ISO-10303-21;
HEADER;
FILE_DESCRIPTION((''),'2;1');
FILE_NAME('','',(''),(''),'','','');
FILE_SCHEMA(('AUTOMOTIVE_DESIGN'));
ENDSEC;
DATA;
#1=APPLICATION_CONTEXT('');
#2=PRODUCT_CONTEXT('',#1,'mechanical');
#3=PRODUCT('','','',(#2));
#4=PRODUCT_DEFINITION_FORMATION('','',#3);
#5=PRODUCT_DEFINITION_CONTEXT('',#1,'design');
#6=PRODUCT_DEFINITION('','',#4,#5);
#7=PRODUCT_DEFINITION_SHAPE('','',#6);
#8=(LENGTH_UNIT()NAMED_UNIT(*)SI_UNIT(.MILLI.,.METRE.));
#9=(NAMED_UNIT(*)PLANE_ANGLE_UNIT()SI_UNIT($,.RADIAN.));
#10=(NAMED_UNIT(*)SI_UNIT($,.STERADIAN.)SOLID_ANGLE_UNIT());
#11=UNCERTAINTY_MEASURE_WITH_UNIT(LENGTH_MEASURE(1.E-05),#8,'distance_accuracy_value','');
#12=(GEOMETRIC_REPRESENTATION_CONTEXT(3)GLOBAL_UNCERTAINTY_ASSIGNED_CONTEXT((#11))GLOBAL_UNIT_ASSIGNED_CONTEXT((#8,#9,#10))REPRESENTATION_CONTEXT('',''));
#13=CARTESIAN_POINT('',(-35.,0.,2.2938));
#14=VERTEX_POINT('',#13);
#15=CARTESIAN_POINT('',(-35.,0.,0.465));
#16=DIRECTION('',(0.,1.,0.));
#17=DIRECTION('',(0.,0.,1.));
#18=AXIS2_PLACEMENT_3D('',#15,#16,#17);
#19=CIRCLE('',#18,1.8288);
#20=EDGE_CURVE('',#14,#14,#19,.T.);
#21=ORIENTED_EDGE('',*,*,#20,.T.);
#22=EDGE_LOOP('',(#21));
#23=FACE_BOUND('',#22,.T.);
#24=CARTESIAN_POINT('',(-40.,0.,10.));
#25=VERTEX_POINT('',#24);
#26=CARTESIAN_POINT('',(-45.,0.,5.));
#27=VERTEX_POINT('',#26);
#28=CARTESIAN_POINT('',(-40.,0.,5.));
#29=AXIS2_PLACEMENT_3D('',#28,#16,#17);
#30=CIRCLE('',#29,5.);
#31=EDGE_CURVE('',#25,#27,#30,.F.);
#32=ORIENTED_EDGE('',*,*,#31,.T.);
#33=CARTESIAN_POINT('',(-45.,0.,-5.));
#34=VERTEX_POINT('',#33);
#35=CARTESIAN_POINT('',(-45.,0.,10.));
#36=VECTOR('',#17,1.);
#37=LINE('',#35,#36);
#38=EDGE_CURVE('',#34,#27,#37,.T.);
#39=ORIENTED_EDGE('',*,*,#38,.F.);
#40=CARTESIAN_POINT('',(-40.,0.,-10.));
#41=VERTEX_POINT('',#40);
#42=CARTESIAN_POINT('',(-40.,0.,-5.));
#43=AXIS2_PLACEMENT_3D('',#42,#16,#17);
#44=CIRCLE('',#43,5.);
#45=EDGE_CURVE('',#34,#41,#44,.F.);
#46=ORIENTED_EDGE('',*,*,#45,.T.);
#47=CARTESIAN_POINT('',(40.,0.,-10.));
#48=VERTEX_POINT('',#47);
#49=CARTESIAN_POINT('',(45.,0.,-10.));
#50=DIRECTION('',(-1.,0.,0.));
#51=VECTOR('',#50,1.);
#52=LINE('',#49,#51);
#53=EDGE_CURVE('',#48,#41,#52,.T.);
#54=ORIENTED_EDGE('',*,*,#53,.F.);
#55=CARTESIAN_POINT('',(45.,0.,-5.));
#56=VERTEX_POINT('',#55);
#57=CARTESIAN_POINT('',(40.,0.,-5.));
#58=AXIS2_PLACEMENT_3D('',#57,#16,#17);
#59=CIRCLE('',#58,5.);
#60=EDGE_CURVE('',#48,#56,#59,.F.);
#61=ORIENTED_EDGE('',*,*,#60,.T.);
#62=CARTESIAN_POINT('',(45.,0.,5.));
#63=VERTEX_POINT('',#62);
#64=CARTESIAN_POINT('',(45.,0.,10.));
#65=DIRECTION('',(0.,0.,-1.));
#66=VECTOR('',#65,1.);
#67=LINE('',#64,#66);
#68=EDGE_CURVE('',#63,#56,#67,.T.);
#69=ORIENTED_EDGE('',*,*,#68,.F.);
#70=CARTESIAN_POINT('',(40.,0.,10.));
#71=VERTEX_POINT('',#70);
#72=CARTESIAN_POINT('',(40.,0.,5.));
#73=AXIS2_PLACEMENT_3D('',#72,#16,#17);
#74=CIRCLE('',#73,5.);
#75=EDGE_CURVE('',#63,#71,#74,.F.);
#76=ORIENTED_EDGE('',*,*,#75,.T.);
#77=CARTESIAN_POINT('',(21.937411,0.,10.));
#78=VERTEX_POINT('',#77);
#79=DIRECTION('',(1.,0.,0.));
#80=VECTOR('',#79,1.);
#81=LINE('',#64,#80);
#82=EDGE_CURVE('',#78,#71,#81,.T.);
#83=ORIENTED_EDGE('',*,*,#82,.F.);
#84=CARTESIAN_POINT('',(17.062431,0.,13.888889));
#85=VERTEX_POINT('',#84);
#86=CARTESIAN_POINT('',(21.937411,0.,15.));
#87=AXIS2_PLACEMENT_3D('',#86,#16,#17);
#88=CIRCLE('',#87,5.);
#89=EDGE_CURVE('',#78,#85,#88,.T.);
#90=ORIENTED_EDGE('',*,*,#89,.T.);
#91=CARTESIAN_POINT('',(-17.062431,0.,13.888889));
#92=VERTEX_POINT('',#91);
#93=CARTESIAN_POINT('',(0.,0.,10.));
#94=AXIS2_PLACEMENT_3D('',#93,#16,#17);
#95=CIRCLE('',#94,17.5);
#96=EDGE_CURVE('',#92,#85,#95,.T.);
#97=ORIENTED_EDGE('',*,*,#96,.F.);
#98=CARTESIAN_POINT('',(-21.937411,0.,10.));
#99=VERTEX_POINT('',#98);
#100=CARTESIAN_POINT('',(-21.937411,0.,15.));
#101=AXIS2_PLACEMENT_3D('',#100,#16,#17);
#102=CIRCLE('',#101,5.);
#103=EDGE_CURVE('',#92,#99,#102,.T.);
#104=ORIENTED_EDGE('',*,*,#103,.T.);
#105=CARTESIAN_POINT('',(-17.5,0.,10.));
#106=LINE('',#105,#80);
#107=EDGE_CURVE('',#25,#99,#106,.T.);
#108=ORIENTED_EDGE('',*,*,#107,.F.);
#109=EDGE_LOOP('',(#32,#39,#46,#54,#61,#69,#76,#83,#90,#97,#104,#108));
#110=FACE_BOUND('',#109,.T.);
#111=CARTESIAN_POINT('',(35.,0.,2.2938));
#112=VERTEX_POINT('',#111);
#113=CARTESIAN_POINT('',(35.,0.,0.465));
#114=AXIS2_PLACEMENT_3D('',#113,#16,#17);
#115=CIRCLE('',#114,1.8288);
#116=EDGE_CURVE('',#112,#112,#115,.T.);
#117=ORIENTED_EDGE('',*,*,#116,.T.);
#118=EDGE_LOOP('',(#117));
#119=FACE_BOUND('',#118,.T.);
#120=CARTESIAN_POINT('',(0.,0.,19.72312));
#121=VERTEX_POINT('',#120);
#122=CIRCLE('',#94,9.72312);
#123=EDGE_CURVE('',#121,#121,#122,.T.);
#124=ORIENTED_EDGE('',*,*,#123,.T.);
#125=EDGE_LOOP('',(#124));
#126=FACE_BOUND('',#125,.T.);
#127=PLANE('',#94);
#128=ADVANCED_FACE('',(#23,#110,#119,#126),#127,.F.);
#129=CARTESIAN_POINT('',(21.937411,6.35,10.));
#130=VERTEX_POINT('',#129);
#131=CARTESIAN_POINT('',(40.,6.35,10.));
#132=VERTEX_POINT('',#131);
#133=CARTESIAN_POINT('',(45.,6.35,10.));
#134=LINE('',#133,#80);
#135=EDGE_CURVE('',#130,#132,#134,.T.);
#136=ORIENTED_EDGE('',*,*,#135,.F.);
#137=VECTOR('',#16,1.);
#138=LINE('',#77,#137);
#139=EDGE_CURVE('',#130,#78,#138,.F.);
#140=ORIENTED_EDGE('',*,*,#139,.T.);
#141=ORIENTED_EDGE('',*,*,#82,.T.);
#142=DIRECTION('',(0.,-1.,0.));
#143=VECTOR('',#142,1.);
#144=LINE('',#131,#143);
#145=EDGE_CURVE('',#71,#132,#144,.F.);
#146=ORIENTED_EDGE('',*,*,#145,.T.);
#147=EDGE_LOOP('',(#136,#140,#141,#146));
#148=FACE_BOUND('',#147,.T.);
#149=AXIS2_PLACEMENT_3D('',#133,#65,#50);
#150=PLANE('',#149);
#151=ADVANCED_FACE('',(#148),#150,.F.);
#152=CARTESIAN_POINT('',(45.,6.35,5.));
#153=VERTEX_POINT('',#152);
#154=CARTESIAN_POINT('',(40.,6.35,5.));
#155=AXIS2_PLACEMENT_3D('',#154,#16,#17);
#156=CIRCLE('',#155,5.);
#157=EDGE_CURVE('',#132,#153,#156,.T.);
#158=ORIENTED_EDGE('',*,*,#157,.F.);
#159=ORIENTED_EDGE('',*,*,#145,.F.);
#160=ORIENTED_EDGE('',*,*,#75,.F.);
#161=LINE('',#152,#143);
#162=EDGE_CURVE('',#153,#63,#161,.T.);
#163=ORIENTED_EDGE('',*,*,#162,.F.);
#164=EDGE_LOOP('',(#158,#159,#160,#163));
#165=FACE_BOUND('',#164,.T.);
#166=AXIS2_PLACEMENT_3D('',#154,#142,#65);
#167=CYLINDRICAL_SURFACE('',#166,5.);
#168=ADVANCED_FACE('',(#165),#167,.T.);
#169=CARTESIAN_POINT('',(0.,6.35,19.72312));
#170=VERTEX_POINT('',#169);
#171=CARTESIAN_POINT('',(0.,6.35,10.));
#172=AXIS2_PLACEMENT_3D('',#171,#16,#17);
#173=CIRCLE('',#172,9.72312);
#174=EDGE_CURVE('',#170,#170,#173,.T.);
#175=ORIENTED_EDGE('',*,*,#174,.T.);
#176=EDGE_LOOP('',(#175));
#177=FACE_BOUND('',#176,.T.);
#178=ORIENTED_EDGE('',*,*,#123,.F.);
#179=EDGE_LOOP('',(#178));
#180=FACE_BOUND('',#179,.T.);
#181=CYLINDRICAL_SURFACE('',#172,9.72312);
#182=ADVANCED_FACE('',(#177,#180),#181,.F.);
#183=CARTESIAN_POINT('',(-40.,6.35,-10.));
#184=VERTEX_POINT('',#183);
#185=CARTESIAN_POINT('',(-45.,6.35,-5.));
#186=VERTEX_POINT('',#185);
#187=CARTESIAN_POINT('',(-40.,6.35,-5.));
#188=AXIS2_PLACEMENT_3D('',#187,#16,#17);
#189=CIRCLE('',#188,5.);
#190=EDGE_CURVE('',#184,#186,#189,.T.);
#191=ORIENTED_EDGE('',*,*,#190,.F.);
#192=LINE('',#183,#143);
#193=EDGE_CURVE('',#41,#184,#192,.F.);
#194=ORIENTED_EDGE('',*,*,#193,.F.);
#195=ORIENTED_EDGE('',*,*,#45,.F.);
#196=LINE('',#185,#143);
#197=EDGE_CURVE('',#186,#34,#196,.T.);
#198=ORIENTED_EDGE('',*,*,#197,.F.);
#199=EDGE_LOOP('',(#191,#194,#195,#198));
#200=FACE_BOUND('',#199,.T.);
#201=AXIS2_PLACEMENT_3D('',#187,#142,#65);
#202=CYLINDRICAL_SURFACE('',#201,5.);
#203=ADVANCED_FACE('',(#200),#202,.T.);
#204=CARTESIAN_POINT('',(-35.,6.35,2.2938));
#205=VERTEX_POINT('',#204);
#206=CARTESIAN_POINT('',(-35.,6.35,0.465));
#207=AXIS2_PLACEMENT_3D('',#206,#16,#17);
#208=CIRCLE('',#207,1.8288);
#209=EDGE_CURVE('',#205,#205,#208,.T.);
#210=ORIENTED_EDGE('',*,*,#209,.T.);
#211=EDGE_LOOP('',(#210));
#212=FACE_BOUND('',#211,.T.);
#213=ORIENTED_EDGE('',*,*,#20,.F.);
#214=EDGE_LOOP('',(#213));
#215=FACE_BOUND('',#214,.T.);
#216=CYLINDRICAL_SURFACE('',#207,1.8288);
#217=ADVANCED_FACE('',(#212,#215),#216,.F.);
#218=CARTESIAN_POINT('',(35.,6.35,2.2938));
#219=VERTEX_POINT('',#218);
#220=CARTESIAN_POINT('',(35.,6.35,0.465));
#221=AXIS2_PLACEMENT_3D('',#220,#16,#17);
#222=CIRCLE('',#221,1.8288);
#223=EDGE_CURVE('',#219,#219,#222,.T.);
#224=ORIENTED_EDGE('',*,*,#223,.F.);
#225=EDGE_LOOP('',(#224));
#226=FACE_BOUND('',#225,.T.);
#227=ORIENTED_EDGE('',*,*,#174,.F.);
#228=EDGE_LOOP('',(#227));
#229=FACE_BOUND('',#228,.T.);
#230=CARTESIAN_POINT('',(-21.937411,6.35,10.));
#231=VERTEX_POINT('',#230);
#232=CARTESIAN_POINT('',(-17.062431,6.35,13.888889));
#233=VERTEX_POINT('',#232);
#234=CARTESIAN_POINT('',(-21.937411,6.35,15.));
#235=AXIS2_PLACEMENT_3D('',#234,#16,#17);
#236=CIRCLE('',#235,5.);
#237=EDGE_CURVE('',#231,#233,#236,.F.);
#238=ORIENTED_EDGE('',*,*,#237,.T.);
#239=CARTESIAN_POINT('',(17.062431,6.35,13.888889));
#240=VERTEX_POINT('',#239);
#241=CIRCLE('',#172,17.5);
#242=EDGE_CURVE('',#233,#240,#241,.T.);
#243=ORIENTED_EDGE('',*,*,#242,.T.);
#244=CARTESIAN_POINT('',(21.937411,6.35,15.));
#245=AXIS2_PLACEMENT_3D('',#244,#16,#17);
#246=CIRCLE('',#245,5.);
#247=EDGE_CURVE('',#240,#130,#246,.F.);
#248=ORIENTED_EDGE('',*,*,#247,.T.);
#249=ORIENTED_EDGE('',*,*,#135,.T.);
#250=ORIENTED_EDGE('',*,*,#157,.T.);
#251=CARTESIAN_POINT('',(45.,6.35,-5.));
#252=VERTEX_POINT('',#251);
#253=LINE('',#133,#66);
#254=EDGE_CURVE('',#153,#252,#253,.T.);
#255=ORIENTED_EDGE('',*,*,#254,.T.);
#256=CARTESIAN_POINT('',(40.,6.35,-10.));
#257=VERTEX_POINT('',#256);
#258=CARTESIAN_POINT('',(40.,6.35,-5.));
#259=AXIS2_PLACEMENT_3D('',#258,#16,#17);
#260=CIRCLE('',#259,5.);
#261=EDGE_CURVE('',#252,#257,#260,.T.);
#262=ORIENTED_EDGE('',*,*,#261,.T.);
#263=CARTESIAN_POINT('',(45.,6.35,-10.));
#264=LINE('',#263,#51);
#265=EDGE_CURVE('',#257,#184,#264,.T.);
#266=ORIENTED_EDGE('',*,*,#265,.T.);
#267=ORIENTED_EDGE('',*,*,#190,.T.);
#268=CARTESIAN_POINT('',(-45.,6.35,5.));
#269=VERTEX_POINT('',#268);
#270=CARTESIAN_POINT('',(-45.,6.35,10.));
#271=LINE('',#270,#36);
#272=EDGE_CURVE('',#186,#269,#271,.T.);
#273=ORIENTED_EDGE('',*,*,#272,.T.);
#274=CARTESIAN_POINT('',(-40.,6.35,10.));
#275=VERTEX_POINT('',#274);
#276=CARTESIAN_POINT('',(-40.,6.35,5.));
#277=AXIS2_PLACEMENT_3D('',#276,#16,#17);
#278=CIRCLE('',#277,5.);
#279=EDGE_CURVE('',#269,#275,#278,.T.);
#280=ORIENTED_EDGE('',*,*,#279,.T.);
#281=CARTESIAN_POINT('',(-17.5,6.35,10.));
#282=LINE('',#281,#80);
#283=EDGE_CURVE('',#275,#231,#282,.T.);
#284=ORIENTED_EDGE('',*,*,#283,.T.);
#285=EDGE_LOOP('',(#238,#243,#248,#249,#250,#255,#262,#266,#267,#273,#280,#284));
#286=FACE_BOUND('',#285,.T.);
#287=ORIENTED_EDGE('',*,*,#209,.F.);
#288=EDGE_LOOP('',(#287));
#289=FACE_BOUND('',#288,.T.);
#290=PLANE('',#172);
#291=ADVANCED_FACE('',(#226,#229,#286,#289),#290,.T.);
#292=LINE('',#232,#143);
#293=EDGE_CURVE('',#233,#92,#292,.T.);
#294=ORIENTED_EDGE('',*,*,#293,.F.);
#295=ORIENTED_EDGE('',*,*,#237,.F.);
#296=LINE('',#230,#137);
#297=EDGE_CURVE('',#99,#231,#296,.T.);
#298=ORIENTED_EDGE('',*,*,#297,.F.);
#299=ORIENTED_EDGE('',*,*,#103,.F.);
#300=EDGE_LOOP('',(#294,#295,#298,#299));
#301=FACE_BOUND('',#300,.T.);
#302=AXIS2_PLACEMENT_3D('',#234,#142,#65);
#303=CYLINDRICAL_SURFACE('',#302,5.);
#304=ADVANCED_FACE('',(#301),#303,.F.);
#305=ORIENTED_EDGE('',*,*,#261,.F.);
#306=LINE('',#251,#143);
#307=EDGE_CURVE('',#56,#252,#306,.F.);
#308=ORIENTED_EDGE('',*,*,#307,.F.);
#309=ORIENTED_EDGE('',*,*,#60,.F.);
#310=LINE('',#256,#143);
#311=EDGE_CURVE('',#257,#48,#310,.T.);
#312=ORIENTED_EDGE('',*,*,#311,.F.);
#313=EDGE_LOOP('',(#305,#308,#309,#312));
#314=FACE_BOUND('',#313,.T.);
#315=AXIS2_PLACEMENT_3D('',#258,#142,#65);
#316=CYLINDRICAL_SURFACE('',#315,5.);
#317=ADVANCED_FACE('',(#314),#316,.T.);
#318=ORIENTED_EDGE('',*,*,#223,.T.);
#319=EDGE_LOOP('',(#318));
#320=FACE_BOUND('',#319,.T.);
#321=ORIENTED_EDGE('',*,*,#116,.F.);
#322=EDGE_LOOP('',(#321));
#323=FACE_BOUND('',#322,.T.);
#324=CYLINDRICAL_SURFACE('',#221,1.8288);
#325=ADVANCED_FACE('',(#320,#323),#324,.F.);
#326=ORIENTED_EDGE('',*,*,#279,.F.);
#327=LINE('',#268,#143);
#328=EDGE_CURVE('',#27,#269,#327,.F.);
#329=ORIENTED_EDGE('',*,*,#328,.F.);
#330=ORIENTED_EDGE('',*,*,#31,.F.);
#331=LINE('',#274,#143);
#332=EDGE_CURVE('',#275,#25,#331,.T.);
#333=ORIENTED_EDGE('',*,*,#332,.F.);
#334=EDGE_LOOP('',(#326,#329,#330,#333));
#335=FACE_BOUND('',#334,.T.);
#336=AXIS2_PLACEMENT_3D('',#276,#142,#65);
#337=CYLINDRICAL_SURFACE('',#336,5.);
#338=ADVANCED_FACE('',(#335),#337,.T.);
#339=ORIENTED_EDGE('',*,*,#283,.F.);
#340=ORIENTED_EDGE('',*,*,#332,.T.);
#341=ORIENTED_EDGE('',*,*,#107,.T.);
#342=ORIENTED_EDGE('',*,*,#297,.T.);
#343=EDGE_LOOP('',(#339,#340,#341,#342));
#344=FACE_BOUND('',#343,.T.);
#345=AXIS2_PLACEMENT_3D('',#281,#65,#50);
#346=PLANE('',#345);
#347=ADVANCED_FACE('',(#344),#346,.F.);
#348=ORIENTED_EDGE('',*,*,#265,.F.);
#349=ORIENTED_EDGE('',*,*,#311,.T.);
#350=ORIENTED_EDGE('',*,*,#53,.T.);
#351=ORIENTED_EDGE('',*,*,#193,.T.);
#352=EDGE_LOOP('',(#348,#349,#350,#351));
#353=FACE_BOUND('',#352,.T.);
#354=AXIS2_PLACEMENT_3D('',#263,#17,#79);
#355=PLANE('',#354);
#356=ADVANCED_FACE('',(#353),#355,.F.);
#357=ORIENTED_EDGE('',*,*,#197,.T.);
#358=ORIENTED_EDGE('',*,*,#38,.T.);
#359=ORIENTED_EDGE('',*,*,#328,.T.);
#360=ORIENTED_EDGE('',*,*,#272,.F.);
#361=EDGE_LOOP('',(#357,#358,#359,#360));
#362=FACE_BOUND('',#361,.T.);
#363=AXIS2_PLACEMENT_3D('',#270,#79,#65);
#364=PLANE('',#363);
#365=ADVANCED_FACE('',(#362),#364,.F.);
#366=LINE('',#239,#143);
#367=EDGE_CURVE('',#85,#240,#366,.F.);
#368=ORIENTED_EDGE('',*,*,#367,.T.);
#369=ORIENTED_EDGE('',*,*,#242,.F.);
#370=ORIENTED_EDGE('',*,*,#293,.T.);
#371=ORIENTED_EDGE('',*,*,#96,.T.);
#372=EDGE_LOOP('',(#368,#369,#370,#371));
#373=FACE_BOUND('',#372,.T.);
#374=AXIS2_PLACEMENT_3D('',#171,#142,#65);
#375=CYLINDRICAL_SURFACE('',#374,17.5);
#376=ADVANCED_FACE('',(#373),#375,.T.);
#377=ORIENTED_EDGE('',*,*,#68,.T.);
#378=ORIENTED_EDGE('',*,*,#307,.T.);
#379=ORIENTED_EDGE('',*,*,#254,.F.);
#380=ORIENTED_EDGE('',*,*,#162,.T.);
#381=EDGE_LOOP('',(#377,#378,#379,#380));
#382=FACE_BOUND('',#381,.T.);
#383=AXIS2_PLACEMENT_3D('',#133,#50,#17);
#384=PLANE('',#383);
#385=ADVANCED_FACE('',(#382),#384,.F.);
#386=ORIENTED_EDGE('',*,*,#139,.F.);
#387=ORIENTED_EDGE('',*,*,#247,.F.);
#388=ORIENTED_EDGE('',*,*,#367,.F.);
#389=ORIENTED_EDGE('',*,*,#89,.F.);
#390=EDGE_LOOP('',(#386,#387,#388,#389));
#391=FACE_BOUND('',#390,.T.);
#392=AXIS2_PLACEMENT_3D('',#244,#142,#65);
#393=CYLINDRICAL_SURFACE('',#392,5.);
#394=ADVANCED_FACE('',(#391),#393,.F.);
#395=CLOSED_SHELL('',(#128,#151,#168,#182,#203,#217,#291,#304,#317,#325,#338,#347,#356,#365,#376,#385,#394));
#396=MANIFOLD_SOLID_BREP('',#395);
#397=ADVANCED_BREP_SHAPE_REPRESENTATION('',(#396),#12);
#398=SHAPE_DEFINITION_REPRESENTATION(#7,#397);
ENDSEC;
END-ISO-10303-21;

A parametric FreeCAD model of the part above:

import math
import FreeCAD as App
import Part
import Sketcher
from FreeCAD import Vector


def edges_at(feature, points):
    """Names of the edges that pass closest to the given points."""
    edges = feature.Shape.Edges
    near = lambda p: min(range(len(edges)), key=lambda i: edges[i].distToShape(Part.Vertex(*p))[0])
    return sorted({f"Edge{near(p) + 1}" for p in points})

doc = App.newDocument("Part")
body = doc.addObject("PartDesign::Body", "Body")

# Sketch on XZ plane
sketch1 = doc.addObject("Sketcher::SketchObject", "Sketch")
body.addObject(sketch1)
sketch1.AttachmentSupport = (doc.XZ_Plane, [""])
sketch1.MapMode = "FlatFace"
sketch1.addGeometry([
    Part.LineSegment(Vector(-45, 10, 0), Vector(-17.5, 10, 0)),  # 0
    Part.ArcOfCircle(Part.Circle(Vector(0, 10, 0), Vector(0, 0, 1), 17.5), math.radians(0), math.radians(180)),  # 1
    Part.LineSegment(Vector(17.5, 10, 0), Vector(45, 10, 0)),  # 2
    Part.LineSegment(Vector(45, 10, 0), Vector(45, -10, 0)),  # 3
    Part.LineSegment(Vector(45, -10, 0), Vector(-45, -10, 0)),  # 4
    Part.LineSegment(Vector(-45, -10, 0), Vector(-45, 10, 0)),  # 5
], False)
sketch1.addConstraint([
    Sketcher.Constraint("Coincident", 0, 2, 1, 2),
    Sketcher.Constraint("Coincident", 1, 1, 2, 1),
    Sketcher.Constraint("Coincident", 2, 2, 3, 1),
    Sketcher.Constraint("Coincident", 3, 2, 4, 1),
    Sketcher.Constraint("Coincident", 4, 2, 5, 1),
    Sketcher.Constraint("Coincident", 5, 2, 0, 1),
    Sketcher.Constraint("Horizontal", 0),
    Sketcher.Constraint("Horizontal", 2),
    Sketcher.Constraint("Vertical", 3),
    Sketcher.Constraint("Horizontal", 4),
    Sketcher.Constraint("Vertical", 5),
    Sketcher.Constraint("Symmetric", 2, 2, 4, 2, -1, 1),
    Sketcher.Constraint("Symmetric", 0, 2, 1, 1, -2),
    Sketcher.Constraint("Horizontal", 1, 3, 0, 2),
    Sketcher.Constraint("Radius", 1, 17.5),
    Sketcher.Constraint("DistanceX", 4, 2, 4, 1, 90.0),
    Sketcher.Constraint("DistanceY", 3, 2, 3, 1, 20.0),
])
pad1 = doc.addObject("PartDesign::Pad", "Pad")
body.addObject(pad1)
pad1.Profile = sketch1
pad1.Length = 6.35
pad1.Reversed = True

# Sketch on XZ plane
sketch2 = doc.addObject("Sketcher::SketchObject", "Sketch001")
body.addObject(sketch2)
sketch2.AttachmentSupport = (doc.XZ_Plane, [""])
sketch2.MapMode = "FlatFace"
sketch2.AttachmentOffset = App.Placement(Vector(0, 0, -6.35), App.Rotation())
sketch2.addGeometry(Part.Circle(Vector(0, 10, 0), Vector(0, 0, 1), 9.72312), False)
sketch2.addConstraint([
    Sketcher.Constraint("PointOnObject", 0, 3, -2),
    Sketcher.Constraint("DistanceY", -1, 1, 0, 3, 10.0),
    Sketcher.Constraint("Diameter", 0, 19.44624),
])
doc.recompute()
hole = doc.addObject("PartDesign::Hole", "Hole")
body.addObject(hole)
hole.Profile = sketch2
hole.ThreadType = "None"
hole.Diameter = 19.44624
hole.DepthType = "ThroughAll"
hole.Reversed = True
doc.recompute()

fillet = doc.addObject("PartDesign::Fillet", "Fillet")
body.addObject(fillet)
fillet.Base = (hole, edges_at(hole, [
    (-45, 3.175, -10),
    (45, 3.175, -10),
    (45, 3.175, 10),
    (17.5, 3.175, 10),
    (-17.5, 3.175, 10),
    (-45, 3.175, 10),
]))
fillet.Radius = 5

# Sketch on XZ plane
sketch3 = doc.addObject("Sketcher::SketchObject", "Sketch002")
body.addObject(sketch3)
sketch3.AttachmentSupport = (doc.XZ_Plane, [""])
sketch3.MapMode = "FlatFace"
sketch3.AttachmentOffset = App.Placement(Vector(0, 0, -6.35), App.Rotation())
sketch3.addGeometry([
    Part.Circle(Vector(-35, 0.465, 0), Vector(0, 0, 1), 1.8288),
    Part.Circle(Vector(35, 0.465, 0), Vector(0, 0, 1), 1.8288),
], False)
sketch3.addConstraint([
    Sketcher.Constraint("Equal", 0, 1),
    Sketcher.Constraint("Symmetric", 0, 3, 1, 3, -2),
    Sketcher.Constraint("DistanceX", 0, 3, -1, 1, 35.0),
    Sketcher.Constraint("Diameter", 0, 3.6576),
    Sketcher.Constraint("DistanceY", -1, 1, 0, 3, 0.465),
])
doc.recompute()
hole2 = doc.addObject("PartDesign::Hole", "Hole001")
body.addObject(hole2)
hole2.Profile = sketch3
hole2.ThreadType = "None"
hole2.Diameter = 3.6576
hole2.DepthType = "ThroughAll"
hole2.Reversed = True

doc.recompute()
